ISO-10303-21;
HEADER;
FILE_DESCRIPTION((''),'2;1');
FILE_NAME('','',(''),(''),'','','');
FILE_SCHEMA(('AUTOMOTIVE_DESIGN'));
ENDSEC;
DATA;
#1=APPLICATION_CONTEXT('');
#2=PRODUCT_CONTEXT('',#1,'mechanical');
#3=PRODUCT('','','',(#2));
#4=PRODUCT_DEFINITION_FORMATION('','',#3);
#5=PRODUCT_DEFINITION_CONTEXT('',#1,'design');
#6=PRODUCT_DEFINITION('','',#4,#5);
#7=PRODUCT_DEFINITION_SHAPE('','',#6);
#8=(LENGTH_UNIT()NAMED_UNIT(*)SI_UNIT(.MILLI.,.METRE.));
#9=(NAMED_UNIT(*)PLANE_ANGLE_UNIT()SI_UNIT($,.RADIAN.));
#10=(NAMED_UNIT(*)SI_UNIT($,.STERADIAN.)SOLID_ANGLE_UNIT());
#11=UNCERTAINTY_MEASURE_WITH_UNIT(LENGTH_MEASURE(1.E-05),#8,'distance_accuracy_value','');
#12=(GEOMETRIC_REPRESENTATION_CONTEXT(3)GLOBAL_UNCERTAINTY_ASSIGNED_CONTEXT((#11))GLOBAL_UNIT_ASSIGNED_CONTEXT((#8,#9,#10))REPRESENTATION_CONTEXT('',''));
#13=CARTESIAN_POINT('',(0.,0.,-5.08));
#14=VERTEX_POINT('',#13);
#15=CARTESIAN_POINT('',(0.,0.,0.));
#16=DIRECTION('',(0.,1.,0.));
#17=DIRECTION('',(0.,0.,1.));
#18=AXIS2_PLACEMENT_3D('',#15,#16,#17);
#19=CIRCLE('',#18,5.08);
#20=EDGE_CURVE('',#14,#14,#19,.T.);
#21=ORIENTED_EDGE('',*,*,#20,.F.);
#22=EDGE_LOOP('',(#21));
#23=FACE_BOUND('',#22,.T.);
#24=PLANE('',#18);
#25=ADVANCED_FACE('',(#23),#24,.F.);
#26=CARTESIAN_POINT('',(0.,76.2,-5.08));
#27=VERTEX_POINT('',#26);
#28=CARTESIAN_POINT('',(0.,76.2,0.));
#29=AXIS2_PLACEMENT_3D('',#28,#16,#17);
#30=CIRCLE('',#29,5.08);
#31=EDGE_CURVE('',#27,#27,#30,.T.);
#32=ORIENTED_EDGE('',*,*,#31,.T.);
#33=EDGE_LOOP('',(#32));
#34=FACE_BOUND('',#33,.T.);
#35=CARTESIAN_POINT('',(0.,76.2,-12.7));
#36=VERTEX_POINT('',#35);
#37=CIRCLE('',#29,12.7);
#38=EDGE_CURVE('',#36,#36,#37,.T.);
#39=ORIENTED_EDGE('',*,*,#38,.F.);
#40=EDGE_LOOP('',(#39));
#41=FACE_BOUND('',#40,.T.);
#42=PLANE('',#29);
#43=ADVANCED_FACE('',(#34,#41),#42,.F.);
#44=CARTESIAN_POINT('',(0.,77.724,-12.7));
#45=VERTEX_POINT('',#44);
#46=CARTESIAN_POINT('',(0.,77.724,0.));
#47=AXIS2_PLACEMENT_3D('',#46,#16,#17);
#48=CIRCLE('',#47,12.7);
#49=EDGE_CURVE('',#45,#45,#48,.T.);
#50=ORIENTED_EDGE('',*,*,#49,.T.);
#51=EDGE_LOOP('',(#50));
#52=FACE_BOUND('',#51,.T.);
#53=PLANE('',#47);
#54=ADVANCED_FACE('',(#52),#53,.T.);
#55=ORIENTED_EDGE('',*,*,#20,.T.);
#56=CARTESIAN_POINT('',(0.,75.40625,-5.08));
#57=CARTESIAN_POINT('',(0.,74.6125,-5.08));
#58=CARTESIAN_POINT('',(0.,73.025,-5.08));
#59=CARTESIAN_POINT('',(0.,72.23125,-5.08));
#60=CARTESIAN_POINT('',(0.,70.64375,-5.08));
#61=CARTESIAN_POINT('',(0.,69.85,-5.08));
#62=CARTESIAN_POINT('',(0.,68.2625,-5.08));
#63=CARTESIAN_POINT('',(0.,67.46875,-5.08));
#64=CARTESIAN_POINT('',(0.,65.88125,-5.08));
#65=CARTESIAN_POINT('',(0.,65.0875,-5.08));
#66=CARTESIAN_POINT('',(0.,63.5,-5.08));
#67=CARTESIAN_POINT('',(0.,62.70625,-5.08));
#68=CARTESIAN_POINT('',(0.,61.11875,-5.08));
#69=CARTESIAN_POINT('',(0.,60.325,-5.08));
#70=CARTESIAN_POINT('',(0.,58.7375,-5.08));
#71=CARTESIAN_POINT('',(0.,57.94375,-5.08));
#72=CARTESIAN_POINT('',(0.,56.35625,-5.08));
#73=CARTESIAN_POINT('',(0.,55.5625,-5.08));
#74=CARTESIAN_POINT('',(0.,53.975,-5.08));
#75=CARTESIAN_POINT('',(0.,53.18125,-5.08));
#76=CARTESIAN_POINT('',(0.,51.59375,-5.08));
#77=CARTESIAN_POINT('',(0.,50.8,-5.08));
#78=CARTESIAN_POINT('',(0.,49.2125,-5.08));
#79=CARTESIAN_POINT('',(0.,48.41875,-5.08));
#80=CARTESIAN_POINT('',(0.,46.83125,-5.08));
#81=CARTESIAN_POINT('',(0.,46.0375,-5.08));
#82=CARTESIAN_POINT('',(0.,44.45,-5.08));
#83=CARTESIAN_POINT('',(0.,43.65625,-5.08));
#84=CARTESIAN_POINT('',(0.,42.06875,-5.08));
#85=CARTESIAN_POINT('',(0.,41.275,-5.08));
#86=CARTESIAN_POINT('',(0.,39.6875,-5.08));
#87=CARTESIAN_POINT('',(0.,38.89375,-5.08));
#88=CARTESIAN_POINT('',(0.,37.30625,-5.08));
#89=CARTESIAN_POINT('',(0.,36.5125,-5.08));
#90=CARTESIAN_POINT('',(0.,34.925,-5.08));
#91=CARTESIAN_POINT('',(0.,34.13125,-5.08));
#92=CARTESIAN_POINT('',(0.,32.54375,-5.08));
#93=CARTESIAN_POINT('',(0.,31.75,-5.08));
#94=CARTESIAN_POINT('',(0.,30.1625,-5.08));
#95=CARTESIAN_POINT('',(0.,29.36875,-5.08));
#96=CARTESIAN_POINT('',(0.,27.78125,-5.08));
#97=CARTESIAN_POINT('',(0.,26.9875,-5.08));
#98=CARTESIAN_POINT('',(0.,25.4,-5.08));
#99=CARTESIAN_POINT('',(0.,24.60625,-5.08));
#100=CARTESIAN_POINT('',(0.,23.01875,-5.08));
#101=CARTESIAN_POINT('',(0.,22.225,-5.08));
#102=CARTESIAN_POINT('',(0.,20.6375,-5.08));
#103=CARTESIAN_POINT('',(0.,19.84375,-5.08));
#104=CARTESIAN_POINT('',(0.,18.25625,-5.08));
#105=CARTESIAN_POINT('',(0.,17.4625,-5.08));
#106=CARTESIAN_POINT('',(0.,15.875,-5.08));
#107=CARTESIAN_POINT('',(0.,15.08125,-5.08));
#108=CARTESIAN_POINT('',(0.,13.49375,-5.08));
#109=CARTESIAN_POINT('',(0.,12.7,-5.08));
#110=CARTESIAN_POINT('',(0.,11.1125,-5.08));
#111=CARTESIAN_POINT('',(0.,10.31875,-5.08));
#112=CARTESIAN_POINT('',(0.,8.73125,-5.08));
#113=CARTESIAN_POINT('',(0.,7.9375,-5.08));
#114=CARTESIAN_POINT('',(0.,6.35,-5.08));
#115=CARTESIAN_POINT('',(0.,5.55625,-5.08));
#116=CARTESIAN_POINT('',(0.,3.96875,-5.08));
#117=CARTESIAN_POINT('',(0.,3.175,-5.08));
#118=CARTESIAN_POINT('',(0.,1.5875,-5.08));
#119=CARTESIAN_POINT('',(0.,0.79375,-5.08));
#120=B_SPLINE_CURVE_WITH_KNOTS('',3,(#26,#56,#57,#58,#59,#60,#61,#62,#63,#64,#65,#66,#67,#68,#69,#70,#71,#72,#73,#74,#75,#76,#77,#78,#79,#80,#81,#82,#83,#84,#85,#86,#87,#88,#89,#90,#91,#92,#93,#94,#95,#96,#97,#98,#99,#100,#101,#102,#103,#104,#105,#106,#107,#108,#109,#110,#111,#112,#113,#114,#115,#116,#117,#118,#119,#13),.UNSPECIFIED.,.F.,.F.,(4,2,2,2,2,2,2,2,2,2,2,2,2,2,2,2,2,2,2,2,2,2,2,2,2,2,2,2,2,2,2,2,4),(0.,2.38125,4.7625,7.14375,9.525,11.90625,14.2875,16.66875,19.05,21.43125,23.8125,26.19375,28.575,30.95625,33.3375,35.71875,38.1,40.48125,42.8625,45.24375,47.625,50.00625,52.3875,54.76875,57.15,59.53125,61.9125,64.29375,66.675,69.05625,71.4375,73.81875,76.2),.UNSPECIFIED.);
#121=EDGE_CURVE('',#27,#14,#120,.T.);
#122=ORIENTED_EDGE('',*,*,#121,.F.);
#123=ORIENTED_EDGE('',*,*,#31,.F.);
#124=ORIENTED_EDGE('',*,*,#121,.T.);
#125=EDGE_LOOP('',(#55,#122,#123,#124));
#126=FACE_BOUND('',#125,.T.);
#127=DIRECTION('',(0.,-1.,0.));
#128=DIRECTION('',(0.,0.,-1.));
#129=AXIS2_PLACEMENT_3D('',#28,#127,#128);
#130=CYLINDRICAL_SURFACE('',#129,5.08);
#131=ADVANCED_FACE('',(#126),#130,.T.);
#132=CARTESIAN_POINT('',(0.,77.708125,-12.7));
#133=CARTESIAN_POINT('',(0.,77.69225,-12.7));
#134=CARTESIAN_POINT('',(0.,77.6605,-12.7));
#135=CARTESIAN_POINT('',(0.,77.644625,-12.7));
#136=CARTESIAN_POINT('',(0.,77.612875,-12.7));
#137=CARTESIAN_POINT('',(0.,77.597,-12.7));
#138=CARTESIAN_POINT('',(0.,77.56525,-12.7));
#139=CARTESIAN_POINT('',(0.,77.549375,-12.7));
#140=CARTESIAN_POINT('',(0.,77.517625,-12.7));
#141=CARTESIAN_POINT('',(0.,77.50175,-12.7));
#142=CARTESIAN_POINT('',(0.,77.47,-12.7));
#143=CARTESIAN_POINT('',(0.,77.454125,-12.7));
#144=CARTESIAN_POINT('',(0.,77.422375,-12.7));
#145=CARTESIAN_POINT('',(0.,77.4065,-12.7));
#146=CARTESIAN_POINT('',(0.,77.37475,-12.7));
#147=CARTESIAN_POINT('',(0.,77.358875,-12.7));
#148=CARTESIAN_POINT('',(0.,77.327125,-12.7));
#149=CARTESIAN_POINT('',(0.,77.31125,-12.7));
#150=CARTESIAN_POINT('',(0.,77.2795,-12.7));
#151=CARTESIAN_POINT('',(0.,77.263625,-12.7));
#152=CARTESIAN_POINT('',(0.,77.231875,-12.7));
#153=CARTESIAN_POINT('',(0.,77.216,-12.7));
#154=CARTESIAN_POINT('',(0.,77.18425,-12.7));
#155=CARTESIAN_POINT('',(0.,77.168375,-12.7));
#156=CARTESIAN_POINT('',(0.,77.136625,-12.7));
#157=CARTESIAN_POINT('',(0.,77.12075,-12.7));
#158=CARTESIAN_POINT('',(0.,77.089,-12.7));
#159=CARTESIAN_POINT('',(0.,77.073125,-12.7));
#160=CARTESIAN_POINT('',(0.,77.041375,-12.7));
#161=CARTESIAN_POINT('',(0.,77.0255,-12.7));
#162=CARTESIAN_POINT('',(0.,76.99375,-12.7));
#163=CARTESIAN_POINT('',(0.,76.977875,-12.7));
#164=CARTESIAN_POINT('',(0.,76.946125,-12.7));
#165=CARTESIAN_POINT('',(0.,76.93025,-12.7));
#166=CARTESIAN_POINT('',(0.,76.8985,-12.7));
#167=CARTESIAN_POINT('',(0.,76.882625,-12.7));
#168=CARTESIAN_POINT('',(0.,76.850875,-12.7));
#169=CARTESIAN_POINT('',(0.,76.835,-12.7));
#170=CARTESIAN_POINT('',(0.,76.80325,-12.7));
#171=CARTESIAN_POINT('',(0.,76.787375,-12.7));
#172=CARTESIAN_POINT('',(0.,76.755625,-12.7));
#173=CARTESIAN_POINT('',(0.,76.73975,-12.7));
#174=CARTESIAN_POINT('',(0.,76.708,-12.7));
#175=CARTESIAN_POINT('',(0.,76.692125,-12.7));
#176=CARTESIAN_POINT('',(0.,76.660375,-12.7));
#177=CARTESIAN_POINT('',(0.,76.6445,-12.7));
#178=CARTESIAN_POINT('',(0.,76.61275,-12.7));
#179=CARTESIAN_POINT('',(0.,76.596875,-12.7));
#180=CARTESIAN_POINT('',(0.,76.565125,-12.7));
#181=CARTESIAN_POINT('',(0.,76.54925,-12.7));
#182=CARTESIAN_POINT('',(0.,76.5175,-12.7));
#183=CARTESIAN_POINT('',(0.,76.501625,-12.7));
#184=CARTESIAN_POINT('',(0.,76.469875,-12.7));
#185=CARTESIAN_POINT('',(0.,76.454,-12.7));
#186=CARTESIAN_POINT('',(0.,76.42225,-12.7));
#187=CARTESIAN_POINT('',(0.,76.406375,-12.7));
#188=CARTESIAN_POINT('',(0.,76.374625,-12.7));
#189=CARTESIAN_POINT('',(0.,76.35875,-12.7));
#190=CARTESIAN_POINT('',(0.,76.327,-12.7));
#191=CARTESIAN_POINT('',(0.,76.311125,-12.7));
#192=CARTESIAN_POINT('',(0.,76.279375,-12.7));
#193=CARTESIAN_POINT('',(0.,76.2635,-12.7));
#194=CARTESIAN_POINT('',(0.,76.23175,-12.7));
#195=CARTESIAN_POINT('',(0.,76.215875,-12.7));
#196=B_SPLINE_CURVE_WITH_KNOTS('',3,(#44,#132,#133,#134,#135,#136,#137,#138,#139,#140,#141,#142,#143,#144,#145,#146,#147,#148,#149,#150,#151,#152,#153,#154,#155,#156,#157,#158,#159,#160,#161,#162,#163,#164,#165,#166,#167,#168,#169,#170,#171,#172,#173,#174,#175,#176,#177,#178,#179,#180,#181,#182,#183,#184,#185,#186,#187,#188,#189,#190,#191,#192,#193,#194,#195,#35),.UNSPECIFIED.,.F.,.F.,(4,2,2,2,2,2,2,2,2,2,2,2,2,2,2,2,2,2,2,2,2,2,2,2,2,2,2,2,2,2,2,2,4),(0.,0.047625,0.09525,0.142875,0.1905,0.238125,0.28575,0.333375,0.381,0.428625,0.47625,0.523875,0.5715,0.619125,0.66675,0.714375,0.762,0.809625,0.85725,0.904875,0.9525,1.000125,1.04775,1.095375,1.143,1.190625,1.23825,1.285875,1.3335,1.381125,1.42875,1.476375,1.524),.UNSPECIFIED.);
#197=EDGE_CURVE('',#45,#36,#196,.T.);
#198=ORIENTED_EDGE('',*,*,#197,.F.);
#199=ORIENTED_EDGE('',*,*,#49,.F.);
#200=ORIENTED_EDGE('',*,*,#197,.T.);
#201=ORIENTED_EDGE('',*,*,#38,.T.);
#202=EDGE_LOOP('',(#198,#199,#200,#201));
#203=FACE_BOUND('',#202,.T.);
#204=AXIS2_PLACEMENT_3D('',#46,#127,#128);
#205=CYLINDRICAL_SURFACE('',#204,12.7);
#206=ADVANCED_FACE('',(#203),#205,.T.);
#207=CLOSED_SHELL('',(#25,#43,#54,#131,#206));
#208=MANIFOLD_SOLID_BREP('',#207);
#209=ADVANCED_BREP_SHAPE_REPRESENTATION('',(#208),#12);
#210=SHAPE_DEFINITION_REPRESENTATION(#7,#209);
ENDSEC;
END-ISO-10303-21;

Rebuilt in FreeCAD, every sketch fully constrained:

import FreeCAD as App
import Part
import Sketcher
from FreeCAD import Vector
Q = App.Units.Quantity

doc = App.newDocument("Part")
body = doc.addObject("PartDesign::Body", "Body")

sketch1 = body.newObject("Sketcher::SketchObject", "Sketch")
sketch1.AttachmentSupport = (doc.getObject("XZ_Plane"), [""])
sketch1.MapMode = "FlatFace"
sketch1.addGeometry(Part.Circle(Vector(0, 0, 0), Vector(0, 0, 1), 5.08), False)
sketch1.addConstraint(Sketcher.Constraint("Coincident", 0, 3, -1, 1))
sketch1.addConstraint(Sketcher.Constraint("Diameter", 0, Q("0.4 in")))
pad1 = body.newObject("PartDesign::Pad", "Pad")
pad1.Profile = sketch1
pad1.Length = Q("3 in")
pad1.Reversed = True

sketch2 = body.newObject("Sketcher::SketchObject", "Sketch001")
sketch2.AttachmentSupport = (doc.getObject("XZ_Plane"), [""])
sketch2.MapMode = "FlatFace"
sketch2.AttachmentOffset = App.Placement(Vector(0, 0, -3 * 25.4), App.Rotation())
sketch2.addGeometry(Part.Circle(Vector(0, 0, 0), Vector(0, 0, 1), 12.7), False)
sketch2.addConstraint(Sketcher.Constraint("Coincident", 0, 3, -1, 1))
sketch2.addConstraint(Sketcher.Constraint("Diameter", 0, Q("1 in")))
pad2 = body.newObject("PartDesign::Pad", "Pad001")
pad2.Profile = sketch2
pad2.Length = Q("0.06 in")
pad2.Reversed = True

doc.recompute()
